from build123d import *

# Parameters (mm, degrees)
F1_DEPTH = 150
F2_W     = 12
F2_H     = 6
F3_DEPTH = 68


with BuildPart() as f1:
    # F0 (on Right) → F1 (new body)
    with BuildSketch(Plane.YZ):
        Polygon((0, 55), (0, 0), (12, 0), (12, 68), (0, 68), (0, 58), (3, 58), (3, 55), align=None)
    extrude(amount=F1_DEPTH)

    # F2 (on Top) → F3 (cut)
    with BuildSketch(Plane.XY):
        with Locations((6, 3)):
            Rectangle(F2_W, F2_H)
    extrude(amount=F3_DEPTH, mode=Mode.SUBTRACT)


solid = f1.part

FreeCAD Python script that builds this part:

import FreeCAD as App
import Part
import Sketcher

V = App.Vector

doc = App.newDocument("Part")
body = doc.addObject("PartDesign::Body", "Body")

# Sketch on YZ plane
sketch1 = doc.addObject("Sketcher::SketchObject", "Sketch")
body.addObject(sketch1)
sketch1.AttachmentSupport = (doc.YZ_Plane, [""])
sketch1.MapMode = "FlatFace"
sketch1.addGeometry([
    Part.LineSegment(V(0, 55, 0), V(0, 0, 0)),  # 0
    Part.LineSegment(V(0, 0, 0), V(12, 0, 0)),  # 1
    Part.LineSegment(V(12, 0, 0), V(12, 68, 0)),  # 2
    Part.LineSegment(V(12, 68, 0), V(0, 68, 0)),  # 3
    Part.LineSegment(V(0, 68, 0), V(0, 58, 0)),  # 4
    Part.LineSegment(V(0, 58, 0), V(3, 58, 0)),  # 5
    Part.LineSegment(V(3, 58, 0), V(3, 55, 0)),  # 6
    Part.LineSegment(V(3, 55, 0), V(0, 55, 0)),  # 7
], False)
sketch1.addConstraint([
    Sketcher.Constraint("Coincident", 0, 2, 1, 1),
    Sketcher.Constraint("Coincident", 1, 2, 2, 1),
    Sketcher.Constraint("Coincident", 2, 2, 3, 1),
    Sketcher.Constraint("Coincident", 3, 2, 4, 1),
    Sketcher.Constraint("Coincident", 4, 2, 5, 1),
    Sketcher.Constraint("Coincident", 5, 2, 6, 1),
    Sketcher.Constraint("Coincident", 6, 2, 7, 1),
    Sketcher.Constraint("Coincident", 7, 2, 0, 1),
    Sketcher.Constraint("Vertical", 0),
    Sketcher.Constraint("Horizontal", 1),
    Sketcher.Constraint("Vertical", 2),
    Sketcher.Constraint("Horizontal", 3),
    Sketcher.Constraint("Vertical", 4),
    Sketcher.Constraint("Horizontal", 5),
    Sketcher.Constraint("Vertical", 6),
    Sketcher.Constraint("Horizontal", 7),
    Sketcher.Constraint("Coincident", 0, 2, -1, 1),
    Sketcher.Constraint("PointOnObject", 3, 2, -2),
    Sketcher.Constraint("Equal", 7, 6),
    Sketcher.Constraint("DistanceX", 1, 1, 1, 2, 12.0),
    Sketcher.Constraint("DistanceX", 5, 1, 5, 2, 3.0),
    Sketcher.Constraint("DistanceY", 0, 2, 0, 1, 55.0),
    Sketcher.Constraint("DistanceY", 2, 1, 2, 2, 68.0),
])
pad1 = doc.addObject("PartDesign::Pad", "Pad")
body.addObject(pad1)
pad1.Profile = sketch1
pad1.Length = 150

# Sketch on XY plane
sketch2 = doc.addObject("Sketcher::SketchObject", "Sketch001")
body.addObject(sketch2)
sketch2.AttachmentSupport = (doc.XY_Plane, [""])
sketch2.MapMode = "FlatFace"
sketch2.addGeometry([
    Part.LineSegment(V(0, 6, 0), V(0, 0, 0)),
    Part.LineSegment(V(0, 0, 0), V(12, 0, 0)),
    Part.LineSegment(V(12, 0, 0), V(12, 6, 0)),
    Part.LineSegment(V(12, 6, 0), V(0, 6, 0)),
], False)
sketch2.addConstraint([
    Sketcher.Constraint("Coincident", 0, 2, 1, 1),
    Sketcher.Constraint("Coincident", 1, 2, 2, 1),
    Sketcher.Constraint("Coincident", 2, 2, 3, 1),
    Sketcher.Constraint("Coincident", 3, 2, 0, 1),
    Sketcher.Constraint("Vertical", 0),
    Sketcher.Constraint("Horizontal", 1),
    Sketcher.Constraint("Vertical", 2),
    Sketcher.Constraint("Horizontal", 3),
    Sketcher.Constraint("Coincident", 0, 2, -1, 1),
    Sketcher.Constraint("DistanceX", 1, 1, 1, 2, 12.0),
    Sketcher.Constraint("DistanceY", 0, 2, 0, 1, 6.0),
])
pocket1 = doc.addObject("PartDesign::Pocket", "Pocket")
body.addObject(pocket1)
pocket1.Profile = sketch2
pocket1.Length = 68
pocket1.Reversed = True

doc.recompute()
